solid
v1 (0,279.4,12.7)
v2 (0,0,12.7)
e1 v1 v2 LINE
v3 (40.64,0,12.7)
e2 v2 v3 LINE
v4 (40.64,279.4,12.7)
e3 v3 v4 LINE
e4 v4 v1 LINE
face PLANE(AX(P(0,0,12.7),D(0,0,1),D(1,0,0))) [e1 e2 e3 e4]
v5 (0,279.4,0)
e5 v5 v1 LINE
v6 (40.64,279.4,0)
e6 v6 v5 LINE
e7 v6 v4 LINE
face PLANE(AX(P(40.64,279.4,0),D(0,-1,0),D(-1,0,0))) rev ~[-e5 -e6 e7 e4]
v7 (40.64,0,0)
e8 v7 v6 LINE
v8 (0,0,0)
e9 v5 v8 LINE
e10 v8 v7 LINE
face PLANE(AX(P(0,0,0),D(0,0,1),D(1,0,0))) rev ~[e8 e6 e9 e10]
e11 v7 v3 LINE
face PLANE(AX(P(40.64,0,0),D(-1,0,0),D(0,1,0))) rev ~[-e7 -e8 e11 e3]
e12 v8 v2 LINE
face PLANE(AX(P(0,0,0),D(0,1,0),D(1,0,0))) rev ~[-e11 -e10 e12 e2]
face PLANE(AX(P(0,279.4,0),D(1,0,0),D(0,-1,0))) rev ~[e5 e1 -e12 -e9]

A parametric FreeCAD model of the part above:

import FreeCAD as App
import Part
import Sketcher

V = App.Vector
Q = App.Units.Quantity


def add_polygon(sketch, points):
    """Adds a closed chain of lines whose ends are joined by coincident constraints."""
    first, n = sketch.GeometryCount, len(points)
    for a, b in zip(points, points[1:] + points[:1]):
        sketch.addGeometry(Part.LineSegment(App.Vector(*a, 0), App.Vector(*b, 0)), False)
    for i in range(n):
        sketch.addConstraint(Sketcher.Constraint("Coincident", first + i, 2, first + (i + 1) % n, 1))

doc = App.newDocument("Part")
params = doc.addObject("Spreadsheet::Sheet", "Params")
for row, (alias, value) in enumerate([
    ("sketch1_height", "11 in"),
    ("sketch1_width", "1.6 in"),
    ("pad1_length", "0.5 in"),
], start=1):
    params.set(f"A{row}", alias)
    params.set(f"B{row}", "=" + value)
    params.setAlias(f"B{row}", alias)

body = doc.addObject("PartDesign::Body", "Body")

# Sketch on XY plane
sketch1 = body.newObject("Sketcher::SketchObject", "Sketch")
sketch1.AttachmentSupport = (doc.getObject("XY_Plane"), [""])
sketch1.MapMode = "FlatFace"
add_polygon(sketch1, [(0, 279), (0, 0), (41, 0), (41, 279)])  # lines 0-3
sketch1.addConstraint([
    Sketcher.Constraint("Vertical", 0),
    Sketcher.Constraint("Horizontal", 1),
    Sketcher.Constraint("Vertical", 2),
    Sketcher.Constraint("Horizontal", 3),
    Sketcher.Constraint("Coincident", 0, 2, -1, 1),
    Sketcher.Constraint("DistanceY", 0, 2, 0, 1, Q("11 in")),
    Sketcher.Constraint("DistanceX", 1, 1, 1, 2, Q("1.6 in")),
])
sketch1.setExpression("Constraints[9]", "Params.sketch1_height")
sketch1.setExpression("Constraints[10]", "Params.sketch1_width")
pad1 = body.newObject("PartDesign::Pad", "Pad")
pad1.Profile = sketch1
pad1.setExpression("Length", "Params.pad1_length")

doc.recompute()
